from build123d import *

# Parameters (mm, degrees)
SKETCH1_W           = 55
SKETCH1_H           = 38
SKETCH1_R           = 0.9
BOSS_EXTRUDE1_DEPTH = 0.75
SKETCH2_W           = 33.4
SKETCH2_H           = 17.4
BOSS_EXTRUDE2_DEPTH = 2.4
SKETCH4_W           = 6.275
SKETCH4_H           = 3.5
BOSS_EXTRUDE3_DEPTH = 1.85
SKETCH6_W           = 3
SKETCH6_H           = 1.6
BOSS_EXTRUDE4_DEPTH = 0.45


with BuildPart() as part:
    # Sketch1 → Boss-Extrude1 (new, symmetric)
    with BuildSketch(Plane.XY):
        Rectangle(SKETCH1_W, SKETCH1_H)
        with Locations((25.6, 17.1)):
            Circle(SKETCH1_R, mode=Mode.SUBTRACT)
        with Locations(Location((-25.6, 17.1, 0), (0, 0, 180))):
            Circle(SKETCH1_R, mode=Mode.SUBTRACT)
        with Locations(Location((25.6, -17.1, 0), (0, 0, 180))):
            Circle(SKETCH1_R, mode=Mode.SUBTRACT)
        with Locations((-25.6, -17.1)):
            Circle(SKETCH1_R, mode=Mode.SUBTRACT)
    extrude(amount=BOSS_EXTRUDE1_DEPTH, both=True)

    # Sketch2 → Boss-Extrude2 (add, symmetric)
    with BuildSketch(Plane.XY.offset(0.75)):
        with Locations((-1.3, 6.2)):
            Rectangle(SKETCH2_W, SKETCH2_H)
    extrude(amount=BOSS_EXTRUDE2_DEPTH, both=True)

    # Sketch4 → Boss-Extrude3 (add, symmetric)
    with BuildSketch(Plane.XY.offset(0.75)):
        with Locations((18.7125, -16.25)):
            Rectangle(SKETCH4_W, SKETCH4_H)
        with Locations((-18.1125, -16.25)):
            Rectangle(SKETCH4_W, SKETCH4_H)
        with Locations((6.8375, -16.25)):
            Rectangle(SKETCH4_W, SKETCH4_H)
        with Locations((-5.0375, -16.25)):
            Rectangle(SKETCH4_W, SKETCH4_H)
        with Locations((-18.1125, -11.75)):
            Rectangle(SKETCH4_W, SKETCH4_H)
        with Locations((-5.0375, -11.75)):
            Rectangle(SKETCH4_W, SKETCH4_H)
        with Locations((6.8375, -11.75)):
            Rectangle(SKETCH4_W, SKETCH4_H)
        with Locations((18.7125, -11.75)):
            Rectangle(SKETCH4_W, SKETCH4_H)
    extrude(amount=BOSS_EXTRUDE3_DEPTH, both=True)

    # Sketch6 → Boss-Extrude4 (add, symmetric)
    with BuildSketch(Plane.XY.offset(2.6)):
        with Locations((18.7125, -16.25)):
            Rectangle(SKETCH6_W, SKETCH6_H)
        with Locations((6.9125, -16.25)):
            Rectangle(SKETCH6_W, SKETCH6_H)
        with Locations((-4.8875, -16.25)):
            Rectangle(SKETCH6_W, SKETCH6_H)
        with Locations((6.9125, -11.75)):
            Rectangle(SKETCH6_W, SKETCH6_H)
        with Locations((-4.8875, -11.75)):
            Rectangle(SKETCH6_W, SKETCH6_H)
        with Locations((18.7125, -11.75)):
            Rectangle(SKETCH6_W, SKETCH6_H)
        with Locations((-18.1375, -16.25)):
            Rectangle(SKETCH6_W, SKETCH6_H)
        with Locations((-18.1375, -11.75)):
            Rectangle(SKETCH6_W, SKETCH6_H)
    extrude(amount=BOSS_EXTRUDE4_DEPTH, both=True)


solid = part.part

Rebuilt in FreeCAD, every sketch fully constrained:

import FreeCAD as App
import Part
import Sketcher

V = App.Vector
Q = App.Units.Quantity

doc = App.newDocument("Part")
body = doc.addObject("PartDesign::Body", "Body")

# Sketch on XY plane
sketch1 = body.newObject("Sketcher::SketchObject", "Sketch")
sketch1.AttachmentSupport = (doc.getObject("XY_Plane"), [""])
sketch1.MapMode = "FlatFace"
sketch1.addGeometry([
    Part.LineSegment(V(-27.5, 19, 0), V(-27.5, -19, 0)),  # 0
    Part.LineSegment(V(-27.5, -19, 0), V(27.5, -19, 0)),  # 1
    Part.LineSegment(V(27.5, -19, 0), V(27.5, 19, 0)),  # 2
    Part.LineSegment(V(27.5, 19, 0), V(-27.5, 19, 0)),  # 3
    Part.Circle(V(-25.6, -17.1, 0), V(0, 0, 1), 0.9),  # 4
    Part.Circle(V(25.6, -17.1, 0), V(0, 0, 1), 0.9),  # 5
    Part.Circle(V(-25.6, 17.1, 0), V(0, 0, 1), 0.9),  # 6
    Part.Circle(V(25.6, 17.1, 0), V(0, 0, 1), 0.9),  # 7
], False)
sketch1.addConstraint([
    Sketcher.Constraint("Coincident", 0, 2, 1, 1),
    Sketcher.Constraint("Coincident", 1, 2, 2, 1),
    Sketcher.Constraint("Coincident", 2, 2, 3, 1),
    Sketcher.Constraint("Coincident", 3, 2, 0, 1),
    Sketcher.Constraint("Vertical", 0),
    Sketcher.Constraint("Horizontal", 1),
    Sketcher.Constraint("Vertical", 2),
    Sketcher.Constraint("Horizontal", 3),
    Sketcher.Constraint("Equal", 4, 5),
    Sketcher.Constraint("Equal", 5, 6),
    Sketcher.Constraint("Equal", 6, 7),
    Sketcher.Constraint("Symmetric", 5, 3, 6, 3, -1, 1),
    Sketcher.Constraint("Symmetric", 4, 3, 7, 3, -1, 1),
    Sketcher.Constraint("Symmetric", 0, 2, 2, 2, -1, 1),
    Sketcher.Constraint("Symmetric", 4, 3, 5, 3, -2),
    Sketcher.Constraint("Diameter", 4, Q("1.8 mm")),
    Sketcher.Constraint("DistanceX", 1, 1, 1, 2, Q("55 mm")),
    Sketcher.Constraint("DistanceY", 0, 2, 0, 1, Q("38 mm")),
    Sketcher.Constraint("DistanceX", 4, 3, -1, 1, Q("25.6 mm")),
    Sketcher.Constraint("DistanceY", 4, 3, -1, 1, Q("17.1 mm")),
])
pad1 = body.newObject("PartDesign::Pad", "Pad")
pad1.Profile = sketch1
pad1.Length = 1.5
pad1.Midplane = True

# Sketch on XY plane
sketch2 = body.newObject("Sketcher::SketchObject", "Sketch001")
sketch2.AttachmentSupport = (doc.getObject("XY_Plane"), [""])
sketch2.MapMode = "FlatFace"
sketch2.AttachmentOffset = App.Placement(V(0, 0, 0.75), App.Rotation())
sketch2.addGeometry([
    Part.LineSegment(V(-18, 15, 0), V(-18, -2, 0)),
    Part.LineSegment(V(-18, -2, 0), V(15, -2, 0)),
    Part.LineSegment(V(15, -2, 0), V(15, 15, 0)),
    Part.LineSegment(V(15, 15, 0), V(-18, 15, 0)),
], False)
sketch2.addConstraint([
    Sketcher.Constraint("Coincident", 0, 2, 1, 1),
    Sketcher.Constraint("Coincident", 1, 2, 2, 1),
    Sketcher.Constraint("Coincident", 2, 2, 3, 1),
    Sketcher.Constraint("Coincident", 3, 2, 0, 1),
    Sketcher.Constraint("Vertical", 0),
    Sketcher.Constraint("Horizontal", 1),
    Sketcher.Constraint("Vertical", 2),
    Sketcher.Constraint("Horizontal", 3),
    Sketcher.Constraint("DistanceX", 1, 1, 1, 2, Q("33.4 mm")),
    Sketcher.Constraint("DistanceY", 0, 2, 0, 1, Q("17.4 mm")),
    Sketcher.Constraint("DistanceX", 0, 2, -1, 1, Q("18 mm")),
    Sketcher.Constraint("DistanceY", 0, 2, -1, 1, Q("2.5 mm")),
])
pad2 = body.newObject("PartDesign::Pad", "Pad001")
pad2.Profile = sketch2
pad2.Length = 4.8
pad2.Midplane = True

# Sketch on XY plane
sketch3 = body.newObject("Sketcher::SketchObject", "Sketch002")
sketch3.AttachmentSupport = (doc.getObject("XY_Plane"), [""])
sketch3.MapMode = "FlatFace"
sketch3.AttachmentOffset = App.Placement(V(0, 0, 0.75), App.Rotation())
sketch3.addGeometry([
    Part.LineSegment(V(15.6, -14.5, 0), V(15.6, -18, 0)),  # 0
    Part.LineSegment(V(15.6, -18, 0), V(21.9, -18, 0)),  # 1
    Part.LineSegment(V(21.9, -18, 0), V(21.9, -14.5, 0)),  # 2
    Part.LineSegment(V(21.9, -14.5, 0), V(15.6, -14.5, 0)),  # 3
    Part.LineSegment(V(-21.2, -14.5, 0), V(-21.2, -18, 0)),  # 4
    Part.LineSegment(V(-21.2, -18, 0), V(-15, -18, 0)),  # 5
    Part.LineSegment(V(-15, -18, 0), V(-15, -14.5, 0)),  # 6
    Part.LineSegment(V(-15, -14.5, 0), V(-21.2, -14.5, 0)),  # 7
    Part.LineSegment(V(3.7, -14.5, 0), V(3.7, -18, 0)),  # 8
    Part.LineSegment(V(3.7, -18, 0), V(10, -18, 0)),  # 9
    Part.LineSegment(V(10, -18, 0), V(10, -14.5, 0)),  # 10
    Part.LineSegment(V(10, -14.5, 0), V(3.7, -14.5, 0)),  # 11
    Part.LineSegment(V(-8.2, -14.5, 0), V(-8.2, -18, 0)),  # 12
    Part.LineSegment(V(-8.2, -18, 0), V(-1.9, -18, 0)),  # 13
    Part.LineSegment(V(-1.9, -18, 0), V(-1.9, -14.5, 0)),  # 14
    Part.LineSegment(V(-1.9, -14.5, 0), V(-8.2, -14.5, 0)),  # 15
    Part.LineSegment(V(-21.2, -10, 0), V(-21.2, -13.5, 0)),  # 16
    Part.LineSegment(V(-21.2, -13.5, 0), V(-15, -13.5, 0)),  # 17
    Part.LineSegment(V(-15, -13.5, 0), V(-15, -10, 0)),  # 18
    Part.LineSegment(V(-15, -10, 0), V(-21.2, -10, 0)),  # 19
    Part.LineSegment(V(-8.2, -10, 0), V(-8.2, -13.5, 0)),  # 20
    Part.LineSegment(V(-8.2, -13.5, 0), V(-1.9, -13.5, 0)),  # 21
    Part.LineSegment(V(-1.9, -13.5, 0), V(-1.9, -10, 0)),  # 22
    Part.LineSegment(V(-1.9, -10, 0), V(-8.2, -10, 0)),  # 23
    Part.LineSegment(V(3.7, -10, 0), V(3.7, -13.5, 0)),  # 24
    Part.LineSegment(V(3.7, -13.5, 0), V(10, -13.5, 0)),  # 25
    Part.LineSegment(V(10, -13.5, 0), V(10, -10, 0)),  # 26
    Part.LineSegment(V(10, -10, 0), V(3.7, -10, 0)),  # 27
    Part.LineSegment(V(15.6, -10, 0), V(15.6, -13.5, 0)),  # 28
    Part.LineSegment(V(15.6, -13.5, 0), V(21.9, -13.5, 0)),  # 29
    Part.LineSegment(V(21.9, -13.5, 0), V(21.9, -10, 0)),  # 30
    Part.LineSegment(V(21.9, -10, 0), V(15.6, -10, 0)),  # 31
], False)
sketch3.addConstraint([
    Sketcher.Constraint("Coincident", 0, 2, 1, 1),
    Sketcher.Constraint("Coincident", 1, 2, 2, 1),
    Sketcher.Constraint("Coincident", 2, 2, 3, 1),
    Sketcher.Constraint("Coincident", 3, 2, 0, 1),
    Sketcher.Constraint("Coincident", 4, 2, 5, 1),
    Sketcher.Constraint("Coincident", 5, 2, 6, 1),
    Sketcher.Constraint("Coincident", 6, 2, 7, 1),
    Sketcher.Constraint("Coincident", 7, 2, 4, 1),
    Sketcher.Constraint("Coincident", 8, 2, 9, 1),
    Sketcher.Constraint("Coincident", 9, 2, 10, 1),
    Sketcher.Constraint("Coincident", 10, 2, 11, 1),
    Sketcher.Constraint("Coincident", 11, 2, 8, 1),
    Sketcher.Constraint("Coincident", 12, 2, 13, 1),
    Sketcher.Constraint("Coincident", 13, 2, 14, 1),
    Sketcher.Constraint("Coincident", 14, 2, 15, 1),
    Sketcher.Constraint("Coincident", 15, 2, 12, 1),
    Sketcher.Constraint("Coincident", 16, 2, 17, 1),
    Sketcher.Constraint("Coincident", 17, 2, 18, 1),
    Sketcher.Constraint("Coincident", 18, 2, 19, 1),
    Sketcher.Constraint("Coincident", 19, 2, 16, 1),
    Sketcher.Constraint("Coincident", 20, 2, 21, 1),
    Sketcher.Constraint("Coincident", 21, 2, 22, 1),
    Sketcher.Constraint("Coincident", 22, 2, 23, 1),
    Sketcher.Constraint("Coincident", 23, 2, 20, 1),
    Sketcher.Constraint("Coincident", 24, 2, 25, 1),
    Sketcher.Constraint("Coincident", 25, 2, 26, 1),
    Sketcher.Constraint("Coincident", 26, 2, 27, 1),
    Sketcher.Constraint("Coincident", 27, 2, 24, 1),
    Sketcher.Constraint("Coincident", 28, 2, 29, 1),
    Sketcher.Constraint("Coincident", 29, 2, 30, 1),
    Sketcher.Constraint("Coincident", 30, 2, 31, 1),
    Sketcher.Constraint("Coincident", 31, 2, 28, 1),
    Sketcher.Constraint("Vertical", 0),
    Sketcher.Constraint("Horizontal", 1),
    Sketcher.Constraint("Vertical", 2),
    Sketcher.Constraint("Horizontal", 3),
    Sketcher.Constraint("Vertical", 4),
    Sketcher.Constraint("Horizontal", 5),
    Sketcher.Constraint("Vertical", 6),
    Sketcher.Constraint("Horizontal", 7),
    Sketcher.Constraint("Vertical", 8),
    Sketcher.Constraint("Horizontal", 9),
    Sketcher.Constraint("Vertical", 10),
    Sketcher.Constraint("Horizontal", 11),
    Sketcher.Constraint("Vertical", 12),
    Sketcher.Constraint("Horizontal", 13),
    Sketcher.Constraint("Vertical", 14),
    Sketcher.Constraint("Horizontal", 15),
    Sketcher.Constraint("Vertical", 16),
    Sketcher.Constraint("Horizontal", 17),
    Sketcher.Constraint("Vertical", 18),
    Sketcher.Constraint("Horizontal", 19),
    Sketcher.Constraint("Vertical", 20),
    Sketcher.Constraint("Horizontal", 21),
    Sketcher.Constraint("Vertical", 22),
    Sketcher.Constraint("Horizontal", 23),
    Sketcher.Constraint("Vertical", 24),
    Sketcher.Constraint("Horizontal", 25),
    Sketcher.Constraint("Vertical", 26),
    Sketcher.Constraint("Horizontal", 27),
    Sketcher.Constraint("Vertical", 28),
    Sketcher.Constraint("Horizontal", 29),
    Sketcher.Constraint("Vertical", 30),
    Sketcher.Constraint("Horizontal", 31),
    Sketcher.Constraint("Horizontal", 1, 2, 4, 2),
    Sketcher.Constraint("Horizontal", 3, 2, 6, 2),
    Sketcher.Constraint("Horizontal", 5, 2, 8, 2),
    Sketcher.Constraint("Horizontal", 7, 2, 10, 2),
    Sketcher.Constraint("Horizontal", 9, 2, 12, 2),
    Sketcher.Constraint("Horizontal", 11, 2, 14, 2),
    Sketcher.Constraint("Horizontal", 17, 2, 20, 2),
    Sketcher.Constraint("Horizontal", 19, 2, 22, 2),
    Sketcher.Constraint("Horizontal", 21, 2, 24, 2),
    Sketcher.Constraint("Horizontal", 23, 2, 26, 2),
    Sketcher.Constraint("Horizontal", 25, 2, 28, 2),
    Sketcher.Constraint("Horizontal", 27, 2, 30, 2),
    Sketcher.Constraint("Vertical", 7, 2, 16, 2),
    Sketcher.Constraint("Vertical", 6, 2, 17, 2),
    Sketcher.Constraint("Vertical", 15, 2, 20, 2),
    Sketcher.Constraint("Vertical", 14, 2, 21, 2),
    Sketcher.Constraint("Vertical", 11, 2, 24, 2),
    Sketcher.Constraint("Vertical", 10, 2, 25, 2),
    Sketcher.Constraint("Vertical", 3, 2, 28, 2),
    Sketcher.Constraint("Vertical", 2, 2, 29, 2),
    Sketcher.Constraint("Equal", 3, 5),
    Sketcher.Constraint("Equal", 7, 9),
    Sketcher.Constraint("Equal", 11, 13),
    Sketcher.Constraint("Equal", 14, 16),
    Sketcher.Constraint("DistanceY", 0, 2, 0, 1, Q("3.5 mm")),
    Sketcher.Constraint("DistanceY", 0, 2, -1, 1, Q("18 mm")),
    Sketcher.Constraint("DistanceY", 18, 2, -1, 1, Q("10 mm")),
    Sketcher.Constraint("DistanceX", -1, 1, 8, 2, Q("3.7 mm")),
    Sketcher.Constraint("DistanceX", 13, 2, -1, 1, Q("1.9 mm")),
    Sketcher.Constraint("DistanceX", 4, 2, 1, 2, Q("43.1 mm")),
    Sketcher.Constraint("DistanceX", 9, 2, 0, 2, Q("5.6 mm")),
    Sketcher.Constraint("DistanceX", 5, 2, 12, 2, Q("6.8 mm")),
])
pad3 = body.newObject("PartDesign::Pad", "Pad002")
pad3.Profile = sketch3
pad3.Length = 3.7
pad3.Midplane = True

# Sketch on XY plane
sketch4 = body.newObject("Sketcher::SketchObject", "Sketch003")
sketch4.AttachmentSupport = (doc.getObject("XY_Plane"), [""])
sketch4.MapMode = "FlatFace"
sketch4.AttachmentOffset = App.Placement(V(0, 0, 2.6), App.Rotation())
sketch4.addGeometry([
    Part.LineSegment(V(17.2, -15.4, 0), V(17.2, -17.1, 0)),  # 0
    Part.LineSegment(V(17.2, -17.1, 0), V(20.2, -17.1, 0)),  # 1
    Part.LineSegment(V(20.2, -17.1, 0), V(20.2, -15.4, 0)),  # 2
    Part.LineSegment(V(20.2, -15.4, 0), V(17.2, -15.4, 0)),  # 3
    Part.LineSegment(V(5.4, -15.4, 0), V(5.4, -17.1, 0)),  # 4
    Part.LineSegment(V(5.4, -17.1, 0), V(8.4, -17.1, 0)),  # 5
    Part.LineSegment(V(8.4, -17.1, 0), V(8.4, -15.4, 0)),  # 6
    Part.LineSegment(V(8.4, -15.4, 0), V(5.4, -15.4, 0)),  # 7
    Part.LineSegment(V(-6.4, -15.4, 0), V(-6.4, -17.1, 0)),  # 8
    Part.LineSegment(V(-6.4, -17.1, 0), V(-3.4, -17.1, 0)),  # 9
    Part.LineSegment(V(-3.4, -17.1, 0), V(-3.4, -15.4, 0)),  # 10
    Part.LineSegment(V(-3.4, -15.4, 0), V(-6.4, -15.4, 0)),  # 11
    Part.LineSegment(V(5.4, -10.9, 0), V(5.4, -12.6, 0)),  # 12
    Part.LineSegment(V(5.4, -12.6, 0), V(8.4, -12.6, 0)),  # 13
    Part.LineSegment(V(8.4, -12.6, 0), V(8.4, -10.9, 0)),  # 14
    Part.LineSegment(V(8.4, -10.9, 0), V(5.4, -10.9, 0)),  # 15
    Part.LineSegment(V(-6.4, -10.9, 0), V(-6.4, -12.6, 0)),  # 16
    Part.LineSegment(V(-6.4, -12.6, 0), V(-3.4, -12.6, 0)),  # 17
    Part.LineSegment(V(-3.4, -12.6, 0), V(-3.4, -10.9, 0)),  # 18
    Part.LineSegment(V(-3.4, -10.9, 0), V(-6.4, -10.9, 0)),  # 19
    Part.LineSegment(V(17.2, -10.9, 0), V(17.2, -12.6, 0)),  # 20
    Part.LineSegment(V(17.2, -12.6, 0), V(20.2, -12.6, 0)),  # 21
    Part.LineSegment(V(20.2, -12.6, 0), V(20.2, -10.9, 0)),  # 22
    Part.LineSegment(V(20.2, -10.9, 0), V(17.2, -10.9, 0)),  # 23
    Part.LineSegment(V(-19.6, -15.4, 0), V(-19.6, -17.1, 0)),  # 24
    Part.LineSegment(V(-19.6, -17.1, 0), V(-16.6, -17.1, 0)),  # 25
    Part.LineSegment(V(-16.6, -17.1, 0), V(-16.6, -15.4, 0)),  # 26
    Part.LineSegment(V(-16.6, -15.4, 0), V(-19.6, -15.4, 0)),  # 27
    Part.LineSegment(V(-19.6, -10.9, 0), V(-19.6, -12.6, 0)),  # 28
    Part.LineSegment(V(-19.6, -12.6, 0), V(-16.6, -12.6, 0)),  # 29
    Part.LineSegment(V(-16.6, -12.6, 0), V(-16.6, -10.9, 0)),  # 30
    Part.LineSegment(V(-16.6, -10.9, 0), V(-19.6, -10.9, 0)),  # 31
], False)
sketch4.addConstraint([
    Sketcher.Constraint("Coincident", 0, 2, 1, 1),
    Sketcher.Constraint("Coincident", 1, 2, 2, 1),
    Sketcher.Constraint("Coincident", 2, 2, 3, 1),
    Sketcher.Constraint("Coincident", 3, 2, 0, 1),
    Sketcher.Constraint("Coincident", 4, 2, 5, 1),
    Sketcher.Constraint("Coincident", 5, 2, 6, 1),
    Sketcher.Constraint("Coincident", 6, 2, 7, 1),
    Sketcher.Constraint("Coincident", 7, 2, 4, 1),
    Sketcher.Constraint("Coincident", 8, 2, 9, 1),
    Sketcher.Constraint("Coincident", 9, 2, 10, 1),
    Sketcher.Constraint("Coincident", 10, 2, 11, 1),
    Sketcher.Constraint("Coincident", 11, 2, 8, 1),
    Sketcher.Constraint("Coincident", 12, 2, 13, 1),
    Sketcher.Constraint("Coincident", 13, 2, 14, 1),
    Sketcher.Constraint("Coincident", 14, 2, 15, 1),
    Sketcher.Constraint("Coincident", 15, 2, 12, 1),
    Sketcher.Constraint("Coincident", 16, 2, 17, 1),
    Sketcher.Constraint("Coincident", 17, 2, 18, 1),
    Sketcher.Constraint("Coincident", 18, 2, 19, 1),
    Sketcher.Constraint("Coincident", 19, 2, 16, 1),
    Sketcher.Constraint("Coincident", 20, 2, 21, 1),
    Sketcher.Constraint("Coincident", 21, 2, 22, 1),
    Sketcher.Constraint("Coincident", 22, 2, 23, 1),
    Sketcher.Constraint("Coincident", 23, 2, 20, 1),
    Sketcher.Constraint("Coincident", 24, 2, 25, 1),
    Sketcher.Constraint("Coincident", 25, 2, 26, 1),
    Sketcher.Constraint("Coincident", 26, 2, 27, 1),
    Sketcher.Constraint("Coincident", 27, 2, 24, 1),
    Sketcher.Constraint("Coincident", 28, 2, 29, 1),
    Sketcher.Constraint("Coincident", 29, 2, 30, 1),
    Sketcher.Constraint("Coincident", 30, 2, 31, 1),
    Sketcher.Constraint("Coincident", 31, 2, 28, 1),
    Sketcher.Constraint("Vertical", 0),
    Sketcher.Constraint("Horizontal", 1),
    Sketcher.Constraint("Vertical", 2),
    Sketcher.Constraint("Horizontal", 3),
    Sketcher.Constraint("Vertical", 4),
    Sketcher.Constraint("Horizontal", 5),
    Sketcher.Constraint("Vertical", 6),
    Sketcher.Constraint("Horizontal", 7),
    Sketcher.Constraint("Vertical", 8),
    Sketcher.Constraint("Horizontal", 9),
    Sketcher.Constraint("Vertical", 10),
    Sketcher.Constraint("Horizontal", 11),
    Sketcher.Constraint("Vertical", 12),
    Sketcher.Constraint("Horizontal", 13),
    Sketcher.Constraint("Vertical", 14),
    Sketcher.Constraint("Horizontal", 15),
    Sketcher.Constraint("Vertical", 16),
    Sketcher.Constraint("Horizontal", 17),
    Sketcher.Constraint("Vertical", 18),
    Sketcher.Constraint("Horizontal", 19),
    Sketcher.Constraint("Vertical", 20),
    Sketcher.Constraint("Horizontal", 21),
    Sketcher.Constraint("Vertical", 22),
    Sketcher.Constraint("Horizontal", 23),
    Sketcher.Constraint("Vertical", 24),
    Sketcher.Constraint("Horizontal", 25),
    Sketcher.Constraint("Vertical", 26),
    Sketcher.Constraint("Horizontal", 27),
    Sketcher.Constraint("Vertical", 28),
    Sketcher.Constraint("Horizontal", 29),
    Sketcher.Constraint("Vertical", 30),
    Sketcher.Constraint("Horizontal", 31),
    Sketcher.Constraint("Horizontal", 1, 2, 4, 2),
    Sketcher.Constraint("Horizontal", 3, 2, 6, 2),
    Sketcher.Constraint("Horizontal", 5, 2, 8, 2),
    Sketcher.Constraint("Horizontal", 7, 2, 10, 2),
    Sketcher.Constraint("Horizontal", 13, 2, 16, 2),
    Sketcher.Constraint("Horizontal", 15, 2, 18, 2),
    Sketcher.Constraint("Horizontal", 17, 2, 20, 2),
    Sketcher.Constraint("Horizontal", 19, 2, 22, 2),
    Sketcher.Constraint("Horizontal", 9, 2, 24, 2),
    Sketcher.Constraint("Horizontal", 11, 2, 26, 2),
    Sketcher.Constraint("Horizontal", 21, 2, 28, 2),
    Sketcher.Constraint("Horizontal", 23, 2, 30, 2),
    Sketcher.Constraint("Vertical", 7, 2, 12, 2),
    Sketcher.Constraint("Vertical", 6, 2, 13, 2),
    Sketcher.Constraint("Vertical", 11, 2, 16, 2),
    Sketcher.Constraint("Vertical", 10, 2, 17, 2),
    Sketcher.Constraint("Vertical", 3, 2, 20, 2),
    Sketcher.Constraint("Vertical", 2, 2, 21, 2),
    Sketcher.Constraint("Vertical", 27, 2, 28, 2),
    Sketcher.Constraint("Vertical", 26, 2, 29, 2),
    Sketcher.Constraint("Equal", 3, 5),
    Sketcher.Constraint("Equal", 7, 9),
    Sketcher.Constraint("Equal", 23, 25),
    Sketcher.Constraint("Equal", 10, 12),
    Sketcher.Constraint("DistanceX", 1, 1, 1, 2, Q("3 mm")),
    Sketcher.Constraint("DistanceY", 0, 2, 0, 1, Q("1.6 mm")),
    Sketcher.Constraint("DistanceX", 4, 2, 0, 2, Q("11.8 mm")),
    Sketcher.Constraint("DistanceX", 8, 2, 4, 2, Q("11.8 mm")),
    Sketcher.Constraint("DistanceY", 7, 2, 12, 2, Q("2.9 mm")),
    Sketcher.Constraint("DistanceY", 0, 2, -1, 1, Q("17.05 mm")),
    Sketcher.Constraint("DistanceX", 24, 2, 8, 2, Q("13.25 mm")),
    Sketcher.Constraint("DistanceX", -1, 1, 0, 2, Q("17.2125 mm")),
])
pad4 = body.newObject("PartDesign::Pad", "Pad003")
pad4.Profile = sketch4
pad4.Length = 0.9
pad4.Midplane = True

doc.recompute()
